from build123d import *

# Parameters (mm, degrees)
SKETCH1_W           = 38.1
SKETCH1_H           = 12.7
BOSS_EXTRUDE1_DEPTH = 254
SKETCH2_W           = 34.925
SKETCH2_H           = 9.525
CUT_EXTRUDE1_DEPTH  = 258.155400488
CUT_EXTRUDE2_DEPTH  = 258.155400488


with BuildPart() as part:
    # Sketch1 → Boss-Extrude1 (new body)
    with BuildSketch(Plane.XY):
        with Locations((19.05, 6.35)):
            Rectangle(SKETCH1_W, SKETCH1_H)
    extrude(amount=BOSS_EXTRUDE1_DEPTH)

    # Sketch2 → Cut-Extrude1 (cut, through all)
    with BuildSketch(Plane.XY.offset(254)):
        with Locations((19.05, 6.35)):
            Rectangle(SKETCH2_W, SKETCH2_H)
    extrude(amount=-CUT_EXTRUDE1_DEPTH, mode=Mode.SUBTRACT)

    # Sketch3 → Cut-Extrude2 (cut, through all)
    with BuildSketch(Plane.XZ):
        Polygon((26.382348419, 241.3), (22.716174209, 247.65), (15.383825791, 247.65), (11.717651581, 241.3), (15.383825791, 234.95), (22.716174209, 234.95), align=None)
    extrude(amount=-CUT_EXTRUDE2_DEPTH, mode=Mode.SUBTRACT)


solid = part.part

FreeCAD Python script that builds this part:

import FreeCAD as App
import Part
import Sketcher

V = App.Vector
Q = App.Units.Quantity


def add_polygon(sketch, points):
    """Adds a closed chain of lines whose ends are joined by coincident constraints."""
    first, n = sketch.GeometryCount, len(points)
    for a, b in zip(points, points[1:] + points[:1]):
        sketch.addGeometry(Part.LineSegment(App.Vector(*a, 0), App.Vector(*b, 0)), False)
    for i in range(n):
        sketch.addConstraint(Sketcher.Constraint("Coincident", first + i, 2, first + (i + 1) % n, 1))

doc = App.newDocument("Part")
params = doc.addObject("Spreadsheet::Sheet", "Params")
for row, (alias, value) in enumerate([
    ("sketch1_width", "1.5 in"),
    ("sketch1_height", "0.5 in"),
    ("pad1_length", "10 in"),
    ("sketch2_width", "1.375 in"),
    ("sketch2_height", "0.375 in"),
], start=1):
    params.set(f"A{row}", alias)
    params.set(f"B{row}", "=" + value)
    params.setAlias(f"B{row}", alias)

body = doc.addObject("PartDesign::Body", "Body")

sketch1 = body.newObject("Sketcher::SketchObject", "Sketch")
sketch1.AttachmentSupport = (doc.getObject("XY_Plane"), [""])
sketch1.MapMode = "FlatFace"
add_polygon(sketch1, [(0, 13), (0, 0), (38, 0), (38, 13)])
sketch1.addConstraint(Sketcher.Constraint("Vertical", 0))
sketch1.addConstraint(Sketcher.Constraint("Horizontal", 1))
sketch1.addConstraint(Sketcher.Constraint("Vertical", 2))
sketch1.addConstraint(Sketcher.Constraint("Horizontal", 3))
sketch1.addConstraint(Sketcher.Constraint("Coincident", 0, 2, -1, 1))
sketch1.addConstraint(Sketcher.Constraint("DistanceX", 1, 1, 1, 2, Q("1.5 in")))
sketch1.addConstraint(Sketcher.Constraint("DistanceY", 0, 2, 0, 1, Q("0.5 in")))
sketch1.setExpression("Constraints[9]", "Params.sketch1_width")
sketch1.setExpression("Constraints[10]", "Params.sketch1_height")
pad1 = body.newObject("PartDesign::Pad", "Pad")
pad1.Profile = sketch1
pad1.setExpression("Length", "Params.pad1_length")

sketch2 = body.newObject("Sketcher::SketchObject", "Sketch001")
sketch2.AttachmentSupport = (doc.getObject("XY_Plane"), [""])
sketch2.MapMode = "FlatFace"
sketch2.AttachmentOffset = App.Placement(V(0, 0, 10 * 25.4), App.Rotation())
add_polygon(sketch2, [(2, 11), (2, 2), (37, 2), (37, 11)])
sketch2.addConstraint(Sketcher.Constraint("Vertical", 0))
sketch2.addConstraint(Sketcher.Constraint("Horizontal", 1))
sketch2.addConstraint(Sketcher.Constraint("Vertical", 2))
sketch2.addConstraint(Sketcher.Constraint("Horizontal", 3))
sketch2.addConstraint(Sketcher.Constraint("DistanceX", 1, 1, 1, 2, Q("1.375 in")))
sketch2.addConstraint(Sketcher.Constraint("DistanceY", 0, 2, 0, 1, Q("0.375 in")))
sketch2.addConstraint(Sketcher.Constraint("DistanceX", -1, 1, 0, 2, Q("0.0625 in")))
sketch2.addConstraint(Sketcher.Constraint("DistanceY", -1, 1, 0, 2, Q("0.0625 in")))
sketch2.setExpression("Constraints[8]", "Params.sketch2_width")
sketch2.setExpression("Constraints[9]", "Params.sketch2_height")
pocket1 = body.newObject("PartDesign::Pocket", "Pocket")
pocket1.Profile = sketch2
pocket1.Type = "ThroughAll"

sketch3 = body.newObject("Sketcher::SketchObject", "Sketch002")
sketch3.AttachmentSupport = (doc.getObject("XZ_Plane"), [""])
sketch3.MapMode = "FlatFace"
add_polygon(sketch3, [(26, 241), (23, 248), (15, 248), (12, 241), (15, 235), (23, 235)])
sketch3.addConstraint(Sketcher.Constraint("Horizontal", 1))
sketch3.addConstraint(Sketcher.Constraint("Horizontal", 4))
sketch3.addConstraint(Sketcher.Constraint("Parallel", 0, 3))
sketch3.addConstraint(Sketcher.Constraint("Parallel", 2, 5))
sketch3.addConstraint(Sketcher.Constraint("Horizontal", 2, 2, 5, 2))
sketch3.addConstraint(Sketcher.Constraint("Vertical", 1, 2, 3, 2))
sketch3.addConstraint(Sketcher.Constraint("Vertical", 0, 2, 4, 2))
sketch3.addConstraint(Sketcher.Constraint("Angle", 0, Q("120 deg")))
sketch3.addConstraint(Sketcher.Constraint("DistanceY", -1, 1, 2, 2, Q("9.5 in")))
sketch3.addConstraint(Sketcher.Constraint("DistanceY", 3, 2, 1, 2, Q("0.5 in")))
sketch3.addConstraint(Sketcher.Constraint("DistanceX", 1, 2, 1, 1, 7.332348))
sketch3.addConstraint(Sketcher.Constraint("DistanceX", -1, 1, 2, 2, 11.717652))
pocket2 = body.newObject("PartDesign::Pocket", "Pocket001")
pocket2.Profile = sketch3
pocket2.Type = "ThroughAll"

doc.recompute()
